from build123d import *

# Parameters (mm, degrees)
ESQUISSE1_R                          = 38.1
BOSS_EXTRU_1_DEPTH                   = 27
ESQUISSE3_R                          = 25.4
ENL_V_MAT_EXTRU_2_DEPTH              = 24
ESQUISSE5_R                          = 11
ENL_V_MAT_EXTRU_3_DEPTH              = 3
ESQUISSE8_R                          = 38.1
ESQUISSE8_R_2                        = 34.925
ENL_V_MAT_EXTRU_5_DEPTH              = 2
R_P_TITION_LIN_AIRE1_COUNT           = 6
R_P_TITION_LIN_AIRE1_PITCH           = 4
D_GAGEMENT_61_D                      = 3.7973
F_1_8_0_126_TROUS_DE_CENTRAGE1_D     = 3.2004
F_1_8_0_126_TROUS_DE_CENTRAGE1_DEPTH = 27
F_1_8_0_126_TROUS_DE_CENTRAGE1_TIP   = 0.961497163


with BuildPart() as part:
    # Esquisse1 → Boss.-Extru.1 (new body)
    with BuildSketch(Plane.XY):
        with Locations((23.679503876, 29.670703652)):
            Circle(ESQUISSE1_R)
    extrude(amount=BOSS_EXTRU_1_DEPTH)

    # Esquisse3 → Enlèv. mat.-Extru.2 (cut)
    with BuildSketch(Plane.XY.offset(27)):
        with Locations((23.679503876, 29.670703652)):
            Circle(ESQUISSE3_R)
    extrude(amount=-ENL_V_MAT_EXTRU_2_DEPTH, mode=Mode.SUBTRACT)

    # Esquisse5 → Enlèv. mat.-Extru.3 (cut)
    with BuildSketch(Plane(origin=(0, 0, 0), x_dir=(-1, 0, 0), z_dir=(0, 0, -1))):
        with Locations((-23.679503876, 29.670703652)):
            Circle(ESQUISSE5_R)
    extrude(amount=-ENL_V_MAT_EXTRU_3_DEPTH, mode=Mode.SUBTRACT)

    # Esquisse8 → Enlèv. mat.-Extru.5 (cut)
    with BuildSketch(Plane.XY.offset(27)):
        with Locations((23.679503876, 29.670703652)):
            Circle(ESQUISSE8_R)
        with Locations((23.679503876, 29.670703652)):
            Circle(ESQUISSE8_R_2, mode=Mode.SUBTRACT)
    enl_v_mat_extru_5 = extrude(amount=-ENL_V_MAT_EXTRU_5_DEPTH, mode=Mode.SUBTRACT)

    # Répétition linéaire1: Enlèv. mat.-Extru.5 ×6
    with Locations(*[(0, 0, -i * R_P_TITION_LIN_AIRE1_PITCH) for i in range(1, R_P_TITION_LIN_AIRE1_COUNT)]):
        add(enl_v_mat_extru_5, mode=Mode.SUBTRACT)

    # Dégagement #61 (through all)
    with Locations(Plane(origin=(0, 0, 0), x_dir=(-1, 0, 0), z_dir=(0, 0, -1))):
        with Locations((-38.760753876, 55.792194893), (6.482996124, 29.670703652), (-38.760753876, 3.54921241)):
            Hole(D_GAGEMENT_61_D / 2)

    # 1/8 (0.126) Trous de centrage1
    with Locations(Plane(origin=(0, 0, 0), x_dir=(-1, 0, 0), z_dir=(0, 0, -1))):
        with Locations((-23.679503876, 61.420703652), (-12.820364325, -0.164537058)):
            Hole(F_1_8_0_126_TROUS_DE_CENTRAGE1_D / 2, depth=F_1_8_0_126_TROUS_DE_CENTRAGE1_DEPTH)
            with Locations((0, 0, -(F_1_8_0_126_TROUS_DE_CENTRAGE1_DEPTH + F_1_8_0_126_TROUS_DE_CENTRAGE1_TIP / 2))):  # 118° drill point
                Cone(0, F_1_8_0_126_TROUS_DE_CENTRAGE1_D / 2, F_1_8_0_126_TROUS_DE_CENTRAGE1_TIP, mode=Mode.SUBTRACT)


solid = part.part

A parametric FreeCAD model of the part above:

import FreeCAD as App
import Part
import Sketcher

V = App.Vector

doc = App.newDocument("Part")
body = doc.addObject("PartDesign::Body", "Body")

# Sketch on XY plane
sketch1 = body.newObject("Sketcher::SketchObject", "Sketch")
sketch1.AttachmentSupport = (doc.getObject("XY_Plane"), [""])
sketch1.MapMode = "FlatFace"
sketch1.addGeometry(Part.Circle(V(24, 30, 0), V(0, 0, 1), 38), False)
sketch1.addConstraint(Sketcher.Constraint("Diameter", 0, 76.2))
sketch1.addConstraint(Sketcher.Constraint("DistanceX", -1, 1, 0, 3, 23.679504))
sketch1.addConstraint(Sketcher.Constraint("DistanceY", -1, 1, 0, 3, 29.670704))
pad1 = body.newObject("PartDesign::Pad", "Pad")
pad1.Profile = sketch1
pad1.Length = 27

# Sketch on XY plane
sketch2 = body.newObject("Sketcher::SketchObject", "Sketch001")
sketch2.AttachmentSupport = (doc.getObject("XY_Plane"), [""])
sketch2.MapMode = "FlatFace"
sketch2.AttachmentOffset = App.Placement(V(0, 0, 27), App.Rotation())
sketch2.addGeometry(Part.Circle(V(24, 30, 0), V(0, 0, 1), 25), False)
sketch2.addConstraint(Sketcher.Constraint("Diameter", 0, 50.8))
sketch2.addConstraint(Sketcher.Constraint("DistanceX", -1, 1, 0, 3, 23.679504))
sketch2.addConstraint(Sketcher.Constraint("DistanceY", -1, 1, 0, 3, 29.670704))
pocket1 = body.newObject("PartDesign::Pocket", "Pocket")
pocket1.Profile = sketch2
pocket1.Length = 24

# Sketch on XY plane
sketch3 = body.newObject("Sketcher::SketchObject", "Sketch002")
sketch3.AttachmentSupport = (doc.getObject("XY_Plane"), [""])
sketch3.MapMode = "FlatFace"
sketch3.addGeometry(Part.Circle(V(24, 30, 0), V(0, 0, 1), 11), False)
sketch3.addConstraint(Sketcher.Constraint("Diameter", 0, 22.0))
sketch3.addConstraint(Sketcher.Constraint("DistanceX", -1, 1, 0, 3, 23.679504))
sketch3.addConstraint(Sketcher.Constraint("DistanceY", -1, 1, 0, 3, 29.670704))
pocket2 = body.newObject("PartDesign::Pocket", "Pocket001")
pocket2.Profile = sketch3
pocket2.Length = 3
pocket2.Reversed = True

# Sketch on XY plane
sketch4 = body.newObject("Sketcher::SketchObject", "Sketch003")
sketch4.AttachmentSupport = (doc.getObject("XY_Plane"), [""])
sketch4.MapMode = "FlatFace"
sketch4.AttachmentOffset = App.Placement(V(0, 0, 27), App.Rotation())
sketch4.addGeometry(Part.Circle(V(24, 30, 0), V(0, 0, 1), 38), False)
sketch4.addGeometry(Part.Circle(V(24, 30, 0), V(0, 0, 1), 35), False)
sketch4.addConstraint(Sketcher.Constraint("Coincident", 1, 3, 0, 3))
sketch4.addConstraint(Sketcher.Constraint("Diameter", 0, 76.2))
sketch4.addConstraint(Sketcher.Constraint("Diameter", 1, 69.85))
sketch4.addConstraint(Sketcher.Constraint("DistanceX", -1, 1, 0, 3, 23.679504))
sketch4.addConstraint(Sketcher.Constraint("DistanceY", -1, 1, 0, 3, 29.670704))
pocket3 = body.newObject("PartDesign::Pocket", "Pocket002")
pocket3.Profile = sketch4
pocket3.Length = 2
doc.recompute()

linearpattern = body.newObject("PartDesign::LinearPattern", "LinearPattern")
linearpattern.Originals = [pocket3]
linearpattern.Direction = (doc.getObject("Z_Axis"), [""])
linearpattern.Mode = "offset"
linearpattern.Offset = 4
linearpattern.Occurrences = 6
linearpattern.Reversed = True
body.Tip = linearpattern

# Sketch on XY plane
sketch5 = body.newObject("Sketcher::SketchObject", "Sketch004")
sketch5.AttachmentSupport = (doc.getObject("XY_Plane"), [""])
sketch5.MapMode = "FlatFace"
sketch5.addGeometry(Part.Circle(V(38.8, 55.8, 0), V(0, 0, 1), 1.9), False)
sketch5.addGeometry(Part.Circle(V(-6.5, 29.7, 0), V(0, 0, 1), 1.9), False)
sketch5.addGeometry(Part.Circle(V(38.8, 3.5, 0), V(0, 0, 1), 1.9), False)
sketch5.addConstraint(Sketcher.Constraint("Equal", 0, 1))
sketch5.addConstraint(Sketcher.Constraint("Equal", 1, 2))
sketch5.addConstraint(Sketcher.Constraint("Vertical", 0, 3, 2, 3))
sketch5.addConstraint(Sketcher.Constraint("Diameter", 0, 3.7973))
sketch5.addConstraint(Sketcher.Constraint("DistanceX", 1, 3, 0, 3, 45.24375))
sketch5.addConstraint(Sketcher.Constraint("DistanceY", 1, 3, 0, 3, 26.121491))
sketch5.addConstraint(Sketcher.Constraint("DistanceY", 2, 3, 1, 3, 26.121491))
sketch5.addConstraint(Sketcher.Constraint("DistanceX", -1, 1, 0, 3, 38.760754))
sketch5.addConstraint(Sketcher.Constraint("DistanceY", -1, 1, 0, 3, 55.792195))
doc.recompute()
hole = body.newObject("PartDesign::Hole", "Hole")
hole.Profile = sketch5
hole.ThreadType = "None"
hole.Diameter = 3.7973
hole.DepthType = "ThroughAll"
hole.Reversed = True

# Sketch on XY plane
sketch6 = body.newObject("Sketcher::SketchObject", "Sketch005")
sketch6.AttachmentSupport = (doc.getObject("XY_Plane"), [""])
sketch6.MapMode = "FlatFace"
sketch6.addGeometry(Part.Circle(V(23.7, 61.4, 0), V(0, 0, 1), 1.6), False)
sketch6.addGeometry(Part.Circle(V(12.8, -0.2, 0), V(0, 0, 1), 1.6), False)
sketch6.addConstraint(Sketcher.Constraint("Equal", 0, 1))
sketch6.addConstraint(Sketcher.Constraint("Diameter", 0, 3.2004))
sketch6.addConstraint(Sketcher.Constraint("DistanceX", 1, 3, 0, 3, 10.85914))
sketch6.addConstraint(Sketcher.Constraint("DistanceY", 1, 3, 0, 3, 61.585241))
sketch6.addConstraint(Sketcher.Constraint("DistanceX", -1, 1, 0, 3, 23.679504))
sketch6.addConstraint(Sketcher.Constraint("DistanceY", -1, 1, 0, 3, 61.420704))
doc.recompute()
hole2 = body.newObject("PartDesign::Hole", "Hole001")
hole2.Profile = sketch6
hole2.ThreadType = "None"
hole2.Diameter = 3.2004
hole2.DepthType = "Dimension"
hole2.Depth = 27
hole2.DrillPoint = "Angled"
hole2.DrillPointAngle = 118
hole2.Reversed = True

doc.recompute()
